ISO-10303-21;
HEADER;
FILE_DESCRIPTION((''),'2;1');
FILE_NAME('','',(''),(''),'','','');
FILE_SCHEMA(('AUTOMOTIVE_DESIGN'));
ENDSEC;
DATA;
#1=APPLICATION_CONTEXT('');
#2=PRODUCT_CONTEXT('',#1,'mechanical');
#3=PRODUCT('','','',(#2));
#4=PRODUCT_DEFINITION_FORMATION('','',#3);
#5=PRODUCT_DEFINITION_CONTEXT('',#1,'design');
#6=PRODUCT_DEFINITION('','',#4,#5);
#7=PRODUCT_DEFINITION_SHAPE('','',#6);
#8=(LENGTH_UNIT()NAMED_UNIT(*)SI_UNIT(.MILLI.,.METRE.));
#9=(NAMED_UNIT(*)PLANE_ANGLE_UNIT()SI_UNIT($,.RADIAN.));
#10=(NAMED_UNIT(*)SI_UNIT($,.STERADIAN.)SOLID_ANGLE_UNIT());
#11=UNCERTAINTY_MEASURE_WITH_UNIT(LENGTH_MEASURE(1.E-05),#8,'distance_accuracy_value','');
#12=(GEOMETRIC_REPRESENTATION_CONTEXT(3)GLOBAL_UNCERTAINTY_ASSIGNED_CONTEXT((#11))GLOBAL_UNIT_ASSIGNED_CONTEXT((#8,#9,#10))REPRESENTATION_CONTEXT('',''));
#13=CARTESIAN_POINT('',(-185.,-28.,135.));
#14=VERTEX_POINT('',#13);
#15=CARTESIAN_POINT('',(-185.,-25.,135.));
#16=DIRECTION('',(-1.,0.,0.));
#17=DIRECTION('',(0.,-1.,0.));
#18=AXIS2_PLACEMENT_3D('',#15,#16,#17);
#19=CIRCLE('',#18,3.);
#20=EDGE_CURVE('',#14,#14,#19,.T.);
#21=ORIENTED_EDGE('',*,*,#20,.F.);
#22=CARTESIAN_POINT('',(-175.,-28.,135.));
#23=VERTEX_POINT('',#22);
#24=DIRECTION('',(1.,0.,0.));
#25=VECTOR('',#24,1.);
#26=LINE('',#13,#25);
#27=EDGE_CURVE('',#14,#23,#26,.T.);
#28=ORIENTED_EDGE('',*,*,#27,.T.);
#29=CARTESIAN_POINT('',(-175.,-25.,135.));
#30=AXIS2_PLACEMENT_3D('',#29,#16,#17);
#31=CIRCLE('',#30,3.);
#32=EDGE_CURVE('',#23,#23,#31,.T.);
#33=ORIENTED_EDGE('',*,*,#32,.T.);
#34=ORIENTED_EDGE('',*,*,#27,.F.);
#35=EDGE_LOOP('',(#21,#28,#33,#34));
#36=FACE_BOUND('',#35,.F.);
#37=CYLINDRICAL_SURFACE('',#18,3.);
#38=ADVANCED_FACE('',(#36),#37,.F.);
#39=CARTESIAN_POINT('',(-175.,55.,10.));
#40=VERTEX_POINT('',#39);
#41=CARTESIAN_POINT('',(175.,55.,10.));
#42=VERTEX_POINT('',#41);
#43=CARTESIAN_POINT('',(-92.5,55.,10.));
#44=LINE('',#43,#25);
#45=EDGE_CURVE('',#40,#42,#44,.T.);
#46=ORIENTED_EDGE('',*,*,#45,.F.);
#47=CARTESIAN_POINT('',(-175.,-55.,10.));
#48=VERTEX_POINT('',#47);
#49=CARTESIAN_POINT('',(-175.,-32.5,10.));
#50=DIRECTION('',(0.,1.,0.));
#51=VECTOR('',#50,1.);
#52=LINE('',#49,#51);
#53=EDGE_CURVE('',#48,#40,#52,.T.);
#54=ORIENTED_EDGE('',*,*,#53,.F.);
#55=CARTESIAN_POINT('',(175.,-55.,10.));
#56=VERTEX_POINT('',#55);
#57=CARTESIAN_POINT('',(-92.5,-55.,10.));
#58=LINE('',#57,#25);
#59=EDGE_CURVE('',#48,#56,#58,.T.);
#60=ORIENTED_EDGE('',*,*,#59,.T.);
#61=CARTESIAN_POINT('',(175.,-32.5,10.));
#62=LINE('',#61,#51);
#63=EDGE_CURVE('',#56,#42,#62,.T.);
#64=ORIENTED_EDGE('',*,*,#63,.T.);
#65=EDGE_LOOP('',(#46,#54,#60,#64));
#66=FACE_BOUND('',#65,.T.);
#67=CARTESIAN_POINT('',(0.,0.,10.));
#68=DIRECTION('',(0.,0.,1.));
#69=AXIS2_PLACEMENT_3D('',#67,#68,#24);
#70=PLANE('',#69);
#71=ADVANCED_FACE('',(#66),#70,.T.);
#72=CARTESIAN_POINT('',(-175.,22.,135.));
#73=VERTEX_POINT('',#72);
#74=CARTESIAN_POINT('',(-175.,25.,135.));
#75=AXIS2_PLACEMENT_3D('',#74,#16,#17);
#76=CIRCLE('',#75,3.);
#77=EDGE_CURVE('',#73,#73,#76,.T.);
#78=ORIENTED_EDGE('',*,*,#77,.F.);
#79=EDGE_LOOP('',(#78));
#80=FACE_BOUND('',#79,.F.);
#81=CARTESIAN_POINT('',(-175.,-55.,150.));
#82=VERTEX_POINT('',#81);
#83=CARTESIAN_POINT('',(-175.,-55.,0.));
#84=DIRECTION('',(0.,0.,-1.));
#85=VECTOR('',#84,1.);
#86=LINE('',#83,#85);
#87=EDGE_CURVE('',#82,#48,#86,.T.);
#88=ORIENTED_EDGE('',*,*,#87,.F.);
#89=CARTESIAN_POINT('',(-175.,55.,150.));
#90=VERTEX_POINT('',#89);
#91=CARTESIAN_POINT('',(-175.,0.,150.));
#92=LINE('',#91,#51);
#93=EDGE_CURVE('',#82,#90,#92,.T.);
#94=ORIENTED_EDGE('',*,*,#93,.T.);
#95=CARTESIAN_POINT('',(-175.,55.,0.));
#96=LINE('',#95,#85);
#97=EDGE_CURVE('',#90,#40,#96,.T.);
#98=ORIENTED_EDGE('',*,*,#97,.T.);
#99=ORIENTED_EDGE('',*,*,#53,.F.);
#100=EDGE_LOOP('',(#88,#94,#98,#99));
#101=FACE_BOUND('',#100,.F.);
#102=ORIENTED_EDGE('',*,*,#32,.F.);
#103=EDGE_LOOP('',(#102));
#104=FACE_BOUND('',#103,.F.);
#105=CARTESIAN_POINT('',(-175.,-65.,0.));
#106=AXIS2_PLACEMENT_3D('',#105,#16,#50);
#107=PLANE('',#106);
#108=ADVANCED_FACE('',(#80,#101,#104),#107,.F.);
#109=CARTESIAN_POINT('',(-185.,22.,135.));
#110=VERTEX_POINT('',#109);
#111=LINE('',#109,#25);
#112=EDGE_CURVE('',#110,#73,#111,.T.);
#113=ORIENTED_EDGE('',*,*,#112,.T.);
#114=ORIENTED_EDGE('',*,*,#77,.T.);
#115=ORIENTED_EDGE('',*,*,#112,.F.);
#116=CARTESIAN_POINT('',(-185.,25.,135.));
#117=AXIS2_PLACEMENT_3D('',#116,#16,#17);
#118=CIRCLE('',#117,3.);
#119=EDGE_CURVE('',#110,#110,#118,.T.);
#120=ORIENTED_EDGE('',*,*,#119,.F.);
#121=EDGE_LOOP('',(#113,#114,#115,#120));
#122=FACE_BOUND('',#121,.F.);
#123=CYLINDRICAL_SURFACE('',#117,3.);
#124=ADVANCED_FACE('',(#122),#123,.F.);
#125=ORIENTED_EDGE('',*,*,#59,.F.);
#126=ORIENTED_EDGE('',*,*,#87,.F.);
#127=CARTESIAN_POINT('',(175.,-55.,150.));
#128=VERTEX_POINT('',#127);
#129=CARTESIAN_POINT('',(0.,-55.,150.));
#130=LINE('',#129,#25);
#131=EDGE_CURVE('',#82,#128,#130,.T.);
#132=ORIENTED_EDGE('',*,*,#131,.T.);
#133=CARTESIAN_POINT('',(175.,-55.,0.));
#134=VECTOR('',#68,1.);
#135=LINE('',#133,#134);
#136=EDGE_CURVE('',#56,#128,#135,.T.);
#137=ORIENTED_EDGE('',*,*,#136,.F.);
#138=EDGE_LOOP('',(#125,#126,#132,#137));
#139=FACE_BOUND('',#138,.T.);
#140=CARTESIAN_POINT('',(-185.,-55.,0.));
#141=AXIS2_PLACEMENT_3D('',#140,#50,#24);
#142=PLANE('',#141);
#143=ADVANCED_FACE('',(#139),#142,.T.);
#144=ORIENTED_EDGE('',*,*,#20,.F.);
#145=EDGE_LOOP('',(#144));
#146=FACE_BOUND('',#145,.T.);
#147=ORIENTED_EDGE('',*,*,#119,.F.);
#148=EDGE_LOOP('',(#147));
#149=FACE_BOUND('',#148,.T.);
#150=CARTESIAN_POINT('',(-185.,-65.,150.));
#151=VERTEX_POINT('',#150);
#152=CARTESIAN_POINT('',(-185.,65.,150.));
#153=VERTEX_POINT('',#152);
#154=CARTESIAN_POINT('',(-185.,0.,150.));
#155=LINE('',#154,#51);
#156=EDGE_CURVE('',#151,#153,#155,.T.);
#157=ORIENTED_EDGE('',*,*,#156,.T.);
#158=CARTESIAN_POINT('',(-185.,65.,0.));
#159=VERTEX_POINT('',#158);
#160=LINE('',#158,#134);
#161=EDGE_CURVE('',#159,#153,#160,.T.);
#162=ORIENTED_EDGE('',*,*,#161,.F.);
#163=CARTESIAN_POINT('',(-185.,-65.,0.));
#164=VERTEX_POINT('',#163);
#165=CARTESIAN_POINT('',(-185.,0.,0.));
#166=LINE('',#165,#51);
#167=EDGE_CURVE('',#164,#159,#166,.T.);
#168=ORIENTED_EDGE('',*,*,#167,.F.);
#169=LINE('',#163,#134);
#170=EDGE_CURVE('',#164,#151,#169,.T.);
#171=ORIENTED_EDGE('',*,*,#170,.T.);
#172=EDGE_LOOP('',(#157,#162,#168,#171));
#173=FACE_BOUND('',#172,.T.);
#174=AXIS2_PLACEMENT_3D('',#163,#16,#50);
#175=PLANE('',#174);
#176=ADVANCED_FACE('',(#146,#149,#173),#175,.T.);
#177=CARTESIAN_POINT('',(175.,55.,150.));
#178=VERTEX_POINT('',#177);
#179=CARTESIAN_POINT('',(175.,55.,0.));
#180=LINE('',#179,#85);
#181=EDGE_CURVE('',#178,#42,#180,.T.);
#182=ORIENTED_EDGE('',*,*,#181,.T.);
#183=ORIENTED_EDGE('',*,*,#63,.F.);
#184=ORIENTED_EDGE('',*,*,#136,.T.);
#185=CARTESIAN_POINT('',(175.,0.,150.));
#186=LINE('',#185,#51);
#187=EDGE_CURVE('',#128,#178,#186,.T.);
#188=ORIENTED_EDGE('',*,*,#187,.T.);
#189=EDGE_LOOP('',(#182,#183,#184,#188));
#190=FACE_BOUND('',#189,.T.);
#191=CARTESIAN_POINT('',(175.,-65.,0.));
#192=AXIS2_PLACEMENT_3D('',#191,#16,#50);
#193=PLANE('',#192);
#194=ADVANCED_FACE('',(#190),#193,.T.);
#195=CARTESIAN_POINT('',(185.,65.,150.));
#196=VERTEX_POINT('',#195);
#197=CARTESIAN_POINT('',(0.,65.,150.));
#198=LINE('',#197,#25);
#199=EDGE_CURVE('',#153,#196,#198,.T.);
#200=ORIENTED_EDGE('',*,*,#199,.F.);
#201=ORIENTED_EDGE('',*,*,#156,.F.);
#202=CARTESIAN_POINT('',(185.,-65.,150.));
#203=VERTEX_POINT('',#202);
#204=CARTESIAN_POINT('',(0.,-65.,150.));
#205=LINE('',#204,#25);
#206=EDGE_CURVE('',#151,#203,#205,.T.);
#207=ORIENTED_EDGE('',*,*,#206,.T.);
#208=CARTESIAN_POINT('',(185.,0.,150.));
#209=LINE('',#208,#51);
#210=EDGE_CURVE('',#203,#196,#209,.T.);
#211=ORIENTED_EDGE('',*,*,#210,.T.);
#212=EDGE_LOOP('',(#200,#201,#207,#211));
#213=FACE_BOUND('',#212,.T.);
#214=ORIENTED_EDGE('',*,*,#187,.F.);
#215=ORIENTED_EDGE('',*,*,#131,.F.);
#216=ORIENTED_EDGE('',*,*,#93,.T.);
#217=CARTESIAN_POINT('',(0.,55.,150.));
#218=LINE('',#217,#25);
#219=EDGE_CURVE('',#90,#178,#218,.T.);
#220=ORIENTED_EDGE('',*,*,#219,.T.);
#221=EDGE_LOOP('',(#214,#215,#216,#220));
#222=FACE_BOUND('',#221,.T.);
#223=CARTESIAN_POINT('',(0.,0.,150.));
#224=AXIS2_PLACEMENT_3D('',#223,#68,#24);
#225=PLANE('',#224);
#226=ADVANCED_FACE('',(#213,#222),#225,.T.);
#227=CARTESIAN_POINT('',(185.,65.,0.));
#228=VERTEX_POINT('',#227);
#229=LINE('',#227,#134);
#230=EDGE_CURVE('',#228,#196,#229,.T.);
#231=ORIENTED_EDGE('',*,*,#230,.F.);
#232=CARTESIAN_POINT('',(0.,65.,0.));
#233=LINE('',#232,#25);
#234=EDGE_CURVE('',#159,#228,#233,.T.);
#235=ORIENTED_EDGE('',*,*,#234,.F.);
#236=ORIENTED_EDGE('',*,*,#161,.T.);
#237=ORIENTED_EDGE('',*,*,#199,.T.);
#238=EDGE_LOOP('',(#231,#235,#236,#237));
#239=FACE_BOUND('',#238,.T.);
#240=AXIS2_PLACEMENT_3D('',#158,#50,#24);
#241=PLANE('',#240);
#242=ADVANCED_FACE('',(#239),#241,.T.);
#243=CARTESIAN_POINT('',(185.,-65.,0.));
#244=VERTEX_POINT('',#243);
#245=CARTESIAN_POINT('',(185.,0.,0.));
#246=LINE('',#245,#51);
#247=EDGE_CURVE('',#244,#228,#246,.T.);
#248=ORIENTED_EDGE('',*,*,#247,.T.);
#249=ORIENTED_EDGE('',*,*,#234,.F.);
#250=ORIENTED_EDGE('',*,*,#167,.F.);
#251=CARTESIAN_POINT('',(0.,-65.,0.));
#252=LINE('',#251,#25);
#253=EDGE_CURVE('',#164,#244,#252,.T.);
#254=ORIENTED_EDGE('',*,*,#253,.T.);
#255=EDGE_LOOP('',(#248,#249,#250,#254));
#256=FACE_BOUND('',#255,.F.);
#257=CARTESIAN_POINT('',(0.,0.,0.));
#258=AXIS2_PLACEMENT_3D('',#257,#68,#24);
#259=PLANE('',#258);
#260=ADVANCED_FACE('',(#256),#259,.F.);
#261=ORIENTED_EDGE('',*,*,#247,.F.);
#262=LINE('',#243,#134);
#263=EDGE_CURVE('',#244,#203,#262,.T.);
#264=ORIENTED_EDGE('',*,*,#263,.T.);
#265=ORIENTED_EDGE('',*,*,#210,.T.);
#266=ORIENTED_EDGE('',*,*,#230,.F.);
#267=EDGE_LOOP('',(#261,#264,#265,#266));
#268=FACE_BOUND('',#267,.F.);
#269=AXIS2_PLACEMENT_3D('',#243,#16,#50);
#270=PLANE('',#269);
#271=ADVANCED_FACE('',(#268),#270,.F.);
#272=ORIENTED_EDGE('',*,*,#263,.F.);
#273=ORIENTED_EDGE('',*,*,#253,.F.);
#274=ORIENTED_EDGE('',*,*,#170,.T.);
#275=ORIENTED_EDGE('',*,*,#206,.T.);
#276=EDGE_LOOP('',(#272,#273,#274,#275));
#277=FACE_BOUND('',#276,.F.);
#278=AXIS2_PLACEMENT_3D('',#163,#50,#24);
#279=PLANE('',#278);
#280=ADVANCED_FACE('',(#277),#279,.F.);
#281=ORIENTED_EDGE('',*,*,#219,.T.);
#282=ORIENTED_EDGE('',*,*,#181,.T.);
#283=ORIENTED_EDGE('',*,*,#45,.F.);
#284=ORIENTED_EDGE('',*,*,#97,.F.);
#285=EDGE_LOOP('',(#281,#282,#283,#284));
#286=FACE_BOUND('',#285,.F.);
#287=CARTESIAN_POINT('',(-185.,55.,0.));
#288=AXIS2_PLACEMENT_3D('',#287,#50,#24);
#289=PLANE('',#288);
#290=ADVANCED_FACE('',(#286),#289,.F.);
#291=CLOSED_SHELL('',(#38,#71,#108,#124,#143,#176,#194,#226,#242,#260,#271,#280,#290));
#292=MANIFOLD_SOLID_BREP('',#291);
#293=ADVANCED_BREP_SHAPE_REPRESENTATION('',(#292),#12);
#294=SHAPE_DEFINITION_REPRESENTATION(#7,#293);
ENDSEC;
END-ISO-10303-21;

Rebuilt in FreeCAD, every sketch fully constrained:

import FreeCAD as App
import Part
import Sketcher


def faces_at(feature, points):
    """Names of the faces that lie closest to the given points."""
    faces = feature.Shape.Faces
    near = lambda p: min(range(len(faces)), key=lambda i: faces[i].distToShape(Part.Vertex(*p))[0])
    return sorted({f"Face{near(p) + 1}" for p in points})


def add_polygon(sketch, points):
    """Adds a closed chain of lines whose ends are joined by coincident constraints."""
    first, n = sketch.GeometryCount, len(points)
    for a, b in zip(points, points[1:] + points[:1]):
        sketch.addGeometry(Part.LineSegment(App.Vector(*a, 0), App.Vector(*b, 0)), False)
    for i in range(n):
        sketch.addConstraint(Sketcher.Constraint("Coincident", first + i, 2, first + (i + 1) % n, 1))

doc = App.newDocument("Part")
body = doc.addObject("PartDesign::Body", "Body")

sketch1 = doc.addObject("Sketcher::SketchObject", "Sketch")
body.addObject(sketch1)
sketch1.AttachmentSupport = (doc.XY_Plane, [""])
sketch1.MapMode = "FlatFace"
add_polygon(sketch1, [(-185, 65), (-185, -65), (185, -65), (185, 65)])
sketch1.addConstraint([
    Sketcher.Constraint("Vertical", 0),
    Sketcher.Constraint("Horizontal", 1),
    Sketcher.Constraint("Vertical", 2),
    Sketcher.Constraint("Horizontal", 3),
    Sketcher.Constraint("Symmetric", 0, 2, 2, 2, -1, 1),
    Sketcher.Constraint("DistanceX", 1, 1, 1, 2, 370.0),
    Sketcher.Constraint("DistanceY", 0, 2, 0, 1, 130.0),
])
pad1 = doc.addObject("PartDesign::Pad", "Pad")
body.addObject(pad1)
pad1.Profile = sketch1
pad1.Length = 150
doc.recompute()

thickness = doc.addObject("PartDesign::Thickness", "Thickness")
body.addObject(thickness)
thickness.Base = (pad1, faces_at(pad1, [(0, 0, 150)]))
thickness.Value = 10
thickness.Reversed = True
thickness.Join = "Arc"

sketch2 = doc.addObject("Sketcher::SketchObject", "Sketch001")
body.addObject(sketch2)
sketch2.AttachmentSupport = (doc.YZ_Plane, [""])
sketch2.MapMode = "FlatFace"
sketch2.AttachmentOffset = App.Placement(App.Vector(0, 0, -185), App.Rotation())
sketch2.addGeometry([
    Part.Circle(App.Vector(25, 135, 0), App.Vector(0, 0, 1), 3),
    Part.Circle(App.Vector(-25, 135, 0), App.Vector(0, 0, 1), 3),
], False)
sketch2.addConstraint([
    Sketcher.Constraint("Equal", 0, 1),
    Sketcher.Constraint("Symmetric", 0, 3, 1, 3, -2),
    Sketcher.Constraint("Diameter", 0, 6.0),
    Sketcher.Constraint("DistanceX", -1, 1, 0, 3, 25.0),
    Sketcher.Constraint("DistanceY", -1, 1, 0, 3, 135.0),
])
pocket1 = doc.addObject("PartDesign::Pocket", "Pocket")
body.addObject(pocket1)
pocket1.Profile = sketch2
pocket1.Length = 25
pocket1.Reversed = True

doc.recompute()
